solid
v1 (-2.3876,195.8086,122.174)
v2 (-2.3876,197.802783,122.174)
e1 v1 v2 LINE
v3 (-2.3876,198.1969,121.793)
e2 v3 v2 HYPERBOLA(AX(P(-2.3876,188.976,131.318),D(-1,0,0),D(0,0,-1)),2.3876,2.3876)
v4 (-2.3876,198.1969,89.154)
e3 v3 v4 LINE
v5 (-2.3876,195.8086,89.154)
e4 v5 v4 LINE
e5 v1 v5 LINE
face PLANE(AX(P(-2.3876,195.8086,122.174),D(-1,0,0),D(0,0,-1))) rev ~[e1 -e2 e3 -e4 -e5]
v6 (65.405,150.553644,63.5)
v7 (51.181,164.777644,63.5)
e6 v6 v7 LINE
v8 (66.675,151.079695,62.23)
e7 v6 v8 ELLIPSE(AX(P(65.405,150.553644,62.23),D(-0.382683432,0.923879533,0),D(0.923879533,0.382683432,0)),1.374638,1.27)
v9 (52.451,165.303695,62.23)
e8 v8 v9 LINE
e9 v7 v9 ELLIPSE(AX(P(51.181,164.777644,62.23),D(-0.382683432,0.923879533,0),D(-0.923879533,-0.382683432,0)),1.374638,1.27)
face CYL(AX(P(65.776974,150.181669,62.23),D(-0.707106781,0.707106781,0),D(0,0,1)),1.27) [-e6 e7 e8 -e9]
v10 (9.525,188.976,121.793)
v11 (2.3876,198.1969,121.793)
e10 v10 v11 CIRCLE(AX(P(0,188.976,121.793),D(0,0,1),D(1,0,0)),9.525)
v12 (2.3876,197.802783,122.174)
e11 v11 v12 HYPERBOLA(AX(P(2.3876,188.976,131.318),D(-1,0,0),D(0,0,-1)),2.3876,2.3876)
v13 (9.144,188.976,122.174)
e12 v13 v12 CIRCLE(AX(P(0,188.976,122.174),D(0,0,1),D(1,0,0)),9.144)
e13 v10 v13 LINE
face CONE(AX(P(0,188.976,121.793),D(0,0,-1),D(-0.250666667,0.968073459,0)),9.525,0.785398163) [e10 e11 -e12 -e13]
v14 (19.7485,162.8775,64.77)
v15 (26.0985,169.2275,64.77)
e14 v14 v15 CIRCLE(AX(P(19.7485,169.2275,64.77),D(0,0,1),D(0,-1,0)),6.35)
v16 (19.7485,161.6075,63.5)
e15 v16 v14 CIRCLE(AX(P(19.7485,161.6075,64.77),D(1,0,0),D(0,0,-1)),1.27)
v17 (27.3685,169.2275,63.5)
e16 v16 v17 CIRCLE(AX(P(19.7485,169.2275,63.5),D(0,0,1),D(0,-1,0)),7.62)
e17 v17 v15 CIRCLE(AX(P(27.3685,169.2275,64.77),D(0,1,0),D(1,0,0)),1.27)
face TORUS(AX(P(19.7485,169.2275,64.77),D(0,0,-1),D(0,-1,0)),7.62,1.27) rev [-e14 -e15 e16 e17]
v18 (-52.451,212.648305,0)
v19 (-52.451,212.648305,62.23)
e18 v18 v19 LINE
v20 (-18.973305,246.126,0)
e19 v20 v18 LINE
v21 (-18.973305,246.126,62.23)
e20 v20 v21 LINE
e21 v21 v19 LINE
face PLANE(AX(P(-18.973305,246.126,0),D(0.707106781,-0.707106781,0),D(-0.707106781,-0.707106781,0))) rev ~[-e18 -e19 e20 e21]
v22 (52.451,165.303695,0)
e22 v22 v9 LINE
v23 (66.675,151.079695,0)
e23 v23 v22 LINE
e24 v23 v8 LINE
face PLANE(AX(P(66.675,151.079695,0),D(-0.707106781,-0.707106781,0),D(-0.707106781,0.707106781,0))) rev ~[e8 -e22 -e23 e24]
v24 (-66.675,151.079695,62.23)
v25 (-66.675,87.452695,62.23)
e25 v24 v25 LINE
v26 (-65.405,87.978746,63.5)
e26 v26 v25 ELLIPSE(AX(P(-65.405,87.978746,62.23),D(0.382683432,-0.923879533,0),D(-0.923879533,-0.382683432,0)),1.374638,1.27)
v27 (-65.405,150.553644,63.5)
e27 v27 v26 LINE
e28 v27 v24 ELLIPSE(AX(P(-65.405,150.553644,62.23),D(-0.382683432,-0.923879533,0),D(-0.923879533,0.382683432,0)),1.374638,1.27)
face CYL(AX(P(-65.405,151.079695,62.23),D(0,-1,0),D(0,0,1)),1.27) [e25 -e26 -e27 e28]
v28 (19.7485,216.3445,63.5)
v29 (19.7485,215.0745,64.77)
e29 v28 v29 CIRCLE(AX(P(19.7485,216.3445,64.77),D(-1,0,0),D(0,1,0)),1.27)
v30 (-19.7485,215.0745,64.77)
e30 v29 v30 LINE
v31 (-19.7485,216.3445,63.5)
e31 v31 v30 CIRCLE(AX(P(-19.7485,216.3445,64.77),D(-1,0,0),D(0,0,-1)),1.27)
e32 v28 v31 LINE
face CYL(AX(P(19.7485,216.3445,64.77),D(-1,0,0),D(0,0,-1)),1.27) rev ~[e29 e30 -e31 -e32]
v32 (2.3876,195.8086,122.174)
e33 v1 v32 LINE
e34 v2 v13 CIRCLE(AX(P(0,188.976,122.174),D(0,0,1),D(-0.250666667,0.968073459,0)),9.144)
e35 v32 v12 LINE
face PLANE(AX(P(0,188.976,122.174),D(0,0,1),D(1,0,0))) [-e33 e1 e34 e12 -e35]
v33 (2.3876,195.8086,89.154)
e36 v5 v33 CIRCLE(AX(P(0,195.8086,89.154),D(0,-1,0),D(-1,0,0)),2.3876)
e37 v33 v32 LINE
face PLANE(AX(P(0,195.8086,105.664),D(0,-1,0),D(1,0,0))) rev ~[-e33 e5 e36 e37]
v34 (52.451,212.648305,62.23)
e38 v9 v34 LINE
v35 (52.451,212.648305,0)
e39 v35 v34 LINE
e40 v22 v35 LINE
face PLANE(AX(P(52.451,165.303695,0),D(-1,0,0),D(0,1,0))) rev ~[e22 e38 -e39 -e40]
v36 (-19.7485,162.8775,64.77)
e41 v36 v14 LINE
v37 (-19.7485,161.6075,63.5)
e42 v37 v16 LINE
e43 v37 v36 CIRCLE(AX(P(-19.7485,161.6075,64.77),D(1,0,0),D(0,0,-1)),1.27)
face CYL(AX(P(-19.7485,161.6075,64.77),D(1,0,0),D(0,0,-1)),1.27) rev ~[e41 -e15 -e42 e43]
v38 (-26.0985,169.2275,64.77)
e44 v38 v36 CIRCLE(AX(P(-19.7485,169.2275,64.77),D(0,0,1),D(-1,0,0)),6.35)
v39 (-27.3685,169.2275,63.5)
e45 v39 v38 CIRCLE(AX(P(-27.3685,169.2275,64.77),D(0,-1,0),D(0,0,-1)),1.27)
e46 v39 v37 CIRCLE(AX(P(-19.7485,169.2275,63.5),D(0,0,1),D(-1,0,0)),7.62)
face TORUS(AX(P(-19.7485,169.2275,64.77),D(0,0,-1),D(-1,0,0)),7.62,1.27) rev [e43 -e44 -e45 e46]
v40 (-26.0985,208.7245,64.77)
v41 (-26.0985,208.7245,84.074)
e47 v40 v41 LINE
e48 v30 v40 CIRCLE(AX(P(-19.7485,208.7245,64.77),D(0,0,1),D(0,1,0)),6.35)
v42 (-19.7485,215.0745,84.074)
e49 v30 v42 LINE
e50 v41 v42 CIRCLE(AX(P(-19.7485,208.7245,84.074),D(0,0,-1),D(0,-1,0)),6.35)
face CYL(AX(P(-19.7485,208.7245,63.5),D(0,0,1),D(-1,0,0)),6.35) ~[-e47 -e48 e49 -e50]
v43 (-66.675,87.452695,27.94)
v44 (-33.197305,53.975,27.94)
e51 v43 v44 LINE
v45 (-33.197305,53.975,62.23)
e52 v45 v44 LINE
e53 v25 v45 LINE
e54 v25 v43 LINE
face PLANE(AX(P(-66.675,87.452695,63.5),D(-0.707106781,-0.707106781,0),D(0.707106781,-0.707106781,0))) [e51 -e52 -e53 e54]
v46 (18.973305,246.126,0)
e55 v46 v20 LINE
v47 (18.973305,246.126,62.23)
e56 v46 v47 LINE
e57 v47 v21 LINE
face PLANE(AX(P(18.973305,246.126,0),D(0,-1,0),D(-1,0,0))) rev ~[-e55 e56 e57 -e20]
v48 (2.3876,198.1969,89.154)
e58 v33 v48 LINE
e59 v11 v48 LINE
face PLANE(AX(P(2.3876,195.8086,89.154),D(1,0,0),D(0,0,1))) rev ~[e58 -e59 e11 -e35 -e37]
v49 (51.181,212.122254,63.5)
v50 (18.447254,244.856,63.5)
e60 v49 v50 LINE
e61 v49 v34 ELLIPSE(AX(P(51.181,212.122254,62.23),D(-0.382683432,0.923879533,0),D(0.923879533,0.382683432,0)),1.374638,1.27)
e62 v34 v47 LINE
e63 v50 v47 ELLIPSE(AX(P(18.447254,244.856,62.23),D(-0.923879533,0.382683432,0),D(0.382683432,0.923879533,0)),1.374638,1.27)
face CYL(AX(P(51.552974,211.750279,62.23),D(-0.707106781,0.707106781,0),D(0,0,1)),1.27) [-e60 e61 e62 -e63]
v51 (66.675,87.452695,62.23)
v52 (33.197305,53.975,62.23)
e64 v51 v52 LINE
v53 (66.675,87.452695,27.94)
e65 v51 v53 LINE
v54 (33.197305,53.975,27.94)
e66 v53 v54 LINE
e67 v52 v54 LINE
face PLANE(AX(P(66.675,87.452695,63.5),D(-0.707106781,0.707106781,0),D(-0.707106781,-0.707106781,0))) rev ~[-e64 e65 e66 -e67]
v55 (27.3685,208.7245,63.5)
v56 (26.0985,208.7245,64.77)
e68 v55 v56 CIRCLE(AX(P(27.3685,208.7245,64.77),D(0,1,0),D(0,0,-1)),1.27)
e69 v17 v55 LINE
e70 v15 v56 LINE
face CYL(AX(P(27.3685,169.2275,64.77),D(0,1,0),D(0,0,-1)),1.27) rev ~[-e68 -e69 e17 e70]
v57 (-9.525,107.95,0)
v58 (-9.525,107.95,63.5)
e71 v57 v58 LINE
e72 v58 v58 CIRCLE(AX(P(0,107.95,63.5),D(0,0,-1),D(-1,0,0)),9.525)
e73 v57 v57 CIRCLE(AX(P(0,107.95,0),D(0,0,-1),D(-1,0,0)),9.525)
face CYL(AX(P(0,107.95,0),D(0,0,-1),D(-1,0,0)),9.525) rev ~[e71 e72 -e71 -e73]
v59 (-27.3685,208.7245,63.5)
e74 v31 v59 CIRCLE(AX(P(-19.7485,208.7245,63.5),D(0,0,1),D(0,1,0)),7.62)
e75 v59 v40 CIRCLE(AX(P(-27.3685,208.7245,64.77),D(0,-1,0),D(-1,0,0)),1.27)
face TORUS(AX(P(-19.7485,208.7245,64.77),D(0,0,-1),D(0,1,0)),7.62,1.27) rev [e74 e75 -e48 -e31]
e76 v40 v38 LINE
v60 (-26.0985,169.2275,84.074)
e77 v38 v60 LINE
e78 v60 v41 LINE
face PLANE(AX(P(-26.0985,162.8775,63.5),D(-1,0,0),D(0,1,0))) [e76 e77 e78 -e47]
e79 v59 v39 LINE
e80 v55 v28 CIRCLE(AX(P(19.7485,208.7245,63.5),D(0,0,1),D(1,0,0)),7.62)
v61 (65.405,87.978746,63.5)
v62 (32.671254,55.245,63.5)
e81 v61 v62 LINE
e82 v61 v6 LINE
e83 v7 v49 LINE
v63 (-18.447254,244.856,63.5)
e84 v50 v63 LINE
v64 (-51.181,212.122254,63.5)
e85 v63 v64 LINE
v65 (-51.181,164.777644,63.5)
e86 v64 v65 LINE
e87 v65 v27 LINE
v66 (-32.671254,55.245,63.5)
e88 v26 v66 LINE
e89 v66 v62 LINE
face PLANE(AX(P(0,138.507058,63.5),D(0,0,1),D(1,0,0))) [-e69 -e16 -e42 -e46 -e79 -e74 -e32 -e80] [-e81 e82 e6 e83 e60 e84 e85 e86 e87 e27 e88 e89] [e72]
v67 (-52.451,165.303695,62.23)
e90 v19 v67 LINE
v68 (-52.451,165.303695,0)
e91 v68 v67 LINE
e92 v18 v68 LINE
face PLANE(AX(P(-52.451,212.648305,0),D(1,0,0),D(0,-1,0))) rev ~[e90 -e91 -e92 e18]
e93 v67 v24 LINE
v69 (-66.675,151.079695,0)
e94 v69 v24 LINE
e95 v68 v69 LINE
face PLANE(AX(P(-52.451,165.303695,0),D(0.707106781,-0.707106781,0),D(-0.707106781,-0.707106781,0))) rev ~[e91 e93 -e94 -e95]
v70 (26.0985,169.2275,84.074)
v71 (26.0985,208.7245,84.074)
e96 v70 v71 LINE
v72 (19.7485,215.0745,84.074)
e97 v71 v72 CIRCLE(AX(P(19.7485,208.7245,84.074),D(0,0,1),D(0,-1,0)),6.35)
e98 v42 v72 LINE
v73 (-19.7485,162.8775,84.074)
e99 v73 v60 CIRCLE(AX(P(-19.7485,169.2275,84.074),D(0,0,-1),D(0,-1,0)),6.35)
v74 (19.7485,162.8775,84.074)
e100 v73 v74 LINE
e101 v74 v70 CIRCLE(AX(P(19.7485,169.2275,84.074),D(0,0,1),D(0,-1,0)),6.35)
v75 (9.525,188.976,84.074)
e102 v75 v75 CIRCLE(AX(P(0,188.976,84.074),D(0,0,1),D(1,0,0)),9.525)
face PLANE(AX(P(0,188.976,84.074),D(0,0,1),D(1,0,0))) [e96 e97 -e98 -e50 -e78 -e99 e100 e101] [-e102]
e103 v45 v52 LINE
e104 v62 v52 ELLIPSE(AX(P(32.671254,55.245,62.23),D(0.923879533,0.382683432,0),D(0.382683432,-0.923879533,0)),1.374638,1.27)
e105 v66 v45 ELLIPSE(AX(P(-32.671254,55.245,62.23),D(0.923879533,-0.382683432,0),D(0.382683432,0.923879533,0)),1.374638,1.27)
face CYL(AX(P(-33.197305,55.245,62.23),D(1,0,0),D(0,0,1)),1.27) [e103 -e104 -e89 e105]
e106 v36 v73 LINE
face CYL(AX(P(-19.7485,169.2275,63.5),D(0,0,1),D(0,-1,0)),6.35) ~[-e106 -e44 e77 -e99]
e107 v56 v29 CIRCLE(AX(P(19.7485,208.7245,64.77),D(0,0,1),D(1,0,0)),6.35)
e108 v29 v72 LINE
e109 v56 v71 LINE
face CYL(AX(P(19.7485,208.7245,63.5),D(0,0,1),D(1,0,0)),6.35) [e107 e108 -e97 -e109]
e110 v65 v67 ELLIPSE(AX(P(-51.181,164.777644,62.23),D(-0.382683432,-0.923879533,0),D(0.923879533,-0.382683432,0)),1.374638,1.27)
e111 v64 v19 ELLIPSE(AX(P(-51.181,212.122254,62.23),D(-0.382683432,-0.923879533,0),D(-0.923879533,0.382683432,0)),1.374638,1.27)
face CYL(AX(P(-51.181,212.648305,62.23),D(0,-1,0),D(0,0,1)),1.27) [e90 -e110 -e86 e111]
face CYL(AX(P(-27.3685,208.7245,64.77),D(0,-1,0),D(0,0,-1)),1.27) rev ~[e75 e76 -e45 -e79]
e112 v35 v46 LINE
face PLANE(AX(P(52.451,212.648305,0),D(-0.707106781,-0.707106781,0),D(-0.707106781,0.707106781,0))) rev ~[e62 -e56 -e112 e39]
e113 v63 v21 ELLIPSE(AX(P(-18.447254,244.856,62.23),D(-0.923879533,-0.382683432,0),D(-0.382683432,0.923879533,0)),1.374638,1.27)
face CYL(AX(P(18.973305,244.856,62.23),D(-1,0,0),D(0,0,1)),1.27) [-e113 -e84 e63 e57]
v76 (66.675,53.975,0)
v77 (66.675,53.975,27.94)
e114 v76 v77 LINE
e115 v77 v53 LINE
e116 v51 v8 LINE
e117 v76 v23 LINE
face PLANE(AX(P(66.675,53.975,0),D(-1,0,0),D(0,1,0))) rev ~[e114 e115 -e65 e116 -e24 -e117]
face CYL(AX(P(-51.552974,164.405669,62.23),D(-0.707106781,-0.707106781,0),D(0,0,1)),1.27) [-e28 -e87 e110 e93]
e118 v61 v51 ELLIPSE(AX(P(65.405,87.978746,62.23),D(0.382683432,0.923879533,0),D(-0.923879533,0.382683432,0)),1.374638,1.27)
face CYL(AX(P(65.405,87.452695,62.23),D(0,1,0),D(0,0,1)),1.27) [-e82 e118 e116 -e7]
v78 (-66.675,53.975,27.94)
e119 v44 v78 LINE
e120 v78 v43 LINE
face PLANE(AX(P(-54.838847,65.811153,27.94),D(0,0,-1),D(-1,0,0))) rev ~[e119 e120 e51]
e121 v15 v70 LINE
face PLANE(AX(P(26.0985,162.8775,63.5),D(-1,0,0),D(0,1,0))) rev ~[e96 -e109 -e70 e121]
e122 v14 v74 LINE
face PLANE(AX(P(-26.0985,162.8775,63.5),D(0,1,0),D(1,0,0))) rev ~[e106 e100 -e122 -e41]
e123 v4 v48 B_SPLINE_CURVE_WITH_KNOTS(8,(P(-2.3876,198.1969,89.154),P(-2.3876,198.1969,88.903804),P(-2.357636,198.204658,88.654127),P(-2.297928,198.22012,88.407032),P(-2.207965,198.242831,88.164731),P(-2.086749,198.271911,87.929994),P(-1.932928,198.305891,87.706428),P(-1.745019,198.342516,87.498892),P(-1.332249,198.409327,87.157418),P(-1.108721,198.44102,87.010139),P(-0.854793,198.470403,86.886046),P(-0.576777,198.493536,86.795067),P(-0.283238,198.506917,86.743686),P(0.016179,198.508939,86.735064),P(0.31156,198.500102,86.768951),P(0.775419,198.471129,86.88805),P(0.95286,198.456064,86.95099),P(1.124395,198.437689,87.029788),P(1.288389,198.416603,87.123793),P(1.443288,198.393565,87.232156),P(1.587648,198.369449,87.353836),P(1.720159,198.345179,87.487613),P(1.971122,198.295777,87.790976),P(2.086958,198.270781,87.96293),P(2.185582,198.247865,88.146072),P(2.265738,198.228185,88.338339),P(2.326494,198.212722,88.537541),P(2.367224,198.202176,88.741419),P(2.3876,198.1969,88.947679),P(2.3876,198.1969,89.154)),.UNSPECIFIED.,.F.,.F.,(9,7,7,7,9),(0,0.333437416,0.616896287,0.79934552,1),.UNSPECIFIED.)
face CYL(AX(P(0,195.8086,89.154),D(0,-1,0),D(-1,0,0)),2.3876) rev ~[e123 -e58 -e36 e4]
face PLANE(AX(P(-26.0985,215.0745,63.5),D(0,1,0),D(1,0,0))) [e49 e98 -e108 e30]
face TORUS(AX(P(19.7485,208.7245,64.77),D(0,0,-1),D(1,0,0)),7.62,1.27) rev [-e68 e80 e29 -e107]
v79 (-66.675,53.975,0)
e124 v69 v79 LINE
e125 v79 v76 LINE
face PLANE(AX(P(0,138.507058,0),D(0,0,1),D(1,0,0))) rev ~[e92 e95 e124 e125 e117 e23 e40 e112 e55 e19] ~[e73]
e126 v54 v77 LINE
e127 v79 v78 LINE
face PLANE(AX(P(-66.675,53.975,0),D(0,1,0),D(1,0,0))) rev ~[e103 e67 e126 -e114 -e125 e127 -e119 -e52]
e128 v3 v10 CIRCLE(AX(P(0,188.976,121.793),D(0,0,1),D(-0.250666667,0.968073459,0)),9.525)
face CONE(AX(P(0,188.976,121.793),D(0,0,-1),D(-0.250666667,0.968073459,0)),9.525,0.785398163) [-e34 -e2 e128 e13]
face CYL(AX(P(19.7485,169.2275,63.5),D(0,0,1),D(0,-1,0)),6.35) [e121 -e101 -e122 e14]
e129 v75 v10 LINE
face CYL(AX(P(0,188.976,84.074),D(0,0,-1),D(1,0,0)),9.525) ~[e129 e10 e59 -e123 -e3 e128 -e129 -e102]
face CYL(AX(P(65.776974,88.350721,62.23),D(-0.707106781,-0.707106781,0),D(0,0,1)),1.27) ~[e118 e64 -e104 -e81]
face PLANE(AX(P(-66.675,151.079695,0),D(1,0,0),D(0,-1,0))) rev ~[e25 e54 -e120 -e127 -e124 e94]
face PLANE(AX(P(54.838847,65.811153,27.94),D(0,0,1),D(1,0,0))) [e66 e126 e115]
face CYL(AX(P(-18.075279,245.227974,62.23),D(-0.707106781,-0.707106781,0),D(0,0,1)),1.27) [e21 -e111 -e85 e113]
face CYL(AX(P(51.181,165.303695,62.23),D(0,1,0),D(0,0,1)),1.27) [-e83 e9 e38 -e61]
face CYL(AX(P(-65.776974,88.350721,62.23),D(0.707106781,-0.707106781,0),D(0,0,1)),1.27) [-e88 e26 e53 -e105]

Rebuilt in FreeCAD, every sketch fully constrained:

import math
import FreeCAD as App
import Part
import Sketcher
from FreeCAD import Vector
Q = App.Units.Quantity


def edges_at(feature, points):
    """Names of the edges that pass closest to the given points."""
    edges = feature.Shape.Edges
    near = lambda p: min(range(len(edges)), key=lambda i: edges[i].distToShape(Part.Vertex(*p))[0])
    return sorted({f"Edge{near(p) + 1}" for p in points})


def add_polygon(sketch, points):
    """Adds a closed chain of lines whose ends are joined by coincident constraints."""
    first, n = sketch.GeometryCount, len(points)
    for a, b in zip(points, points[1:] + points[:1]):
        sketch.addGeometry(Part.LineSegment(App.Vector(*a, 0), App.Vector(*b, 0)), False)
    for i in range(n):
        sketch.addConstraint(Sketcher.Constraint("Coincident", first + i, 2, first + (i + 1) % n, 1))

doc = App.newDocument("Part")
body = doc.addObject("PartDesign::Body", "Body")

# Sketch on XY plane
sketch1 = doc.addObject("Sketcher::SketchObject", "Sketch")
body.addObject(sketch1)
sketch1.AttachmentSupport = (doc.XY_Plane, [""])
sketch1.MapMode = "FlatFace"
add_polygon(sketch1, [(-67, 54), (67, 54), (67, 151), (52, 165), (52, 213), (19, 246), (-19, 246), (-52, 213), (-52, 165), (-67, 151)])  # lines 0-9
sketch1.addConstraint(Sketcher.Constraint("Horizontal", 0))
sketch1.addConstraint(Sketcher.Constraint("Vertical", 1))
sketch1.addConstraint(Sketcher.Constraint("Vertical", 3))
sketch1.addConstraint(Sketcher.Constraint("Horizontal", 5))
sketch1.addConstraint(Sketcher.Constraint("Vertical", 7))
sketch1.addConstraint(Sketcher.Constraint("Vertical", 9))
sketch1.addConstraint(Sketcher.Constraint("Symmetric", 3, 2, 6, 2, -2))
sketch1.addConstraint(Sketcher.Constraint("Symmetric", 1, 2, 8, 2, -2))
sketch1.addConstraint(Sketcher.Constraint("Parallel", 2, 4))
sketch1.addConstraint(Sketcher.Constraint("Perpendicular", 4, 6))
sketch1.addConstraint(Sketcher.Constraint("Parallel", 6, 8))
sketch1.addConstraint(Sketcher.Constraint("Horizontal", 2, 2, 7, 2))
sketch1.addConstraint(Sketcher.Constraint("DistanceX", 0, 1, 0, 2, Q("5.25 in")))
sketch1.addConstraint(Sketcher.Constraint("DistanceY", -1, 1, 4, 2, Q("9.69 in")))
sketch1.addConstraint(Sketcher.Constraint("DistanceX", 2, 2, 1, 2, Q("0.56 in")))
sketch1.addConstraint(Sketcher.Constraint("DistanceY", -1, 1, 0, 2, Q("2.125 in")))
sketch1.addConstraint(Sketcher.Constraint("DistanceX", 5, 2, 5, 1, Q("37.94661 mm")))
sketch1.addConstraint(Sketcher.Constraint("DistanceY", 3, 1, 3, 2, Q("47.34461 mm")))
pad1 = doc.addObject("PartDesign::Pad", "Pad")
body.addObject(pad1)
pad1.Profile = sketch1
pad1.Length = Q("2.5 in")

# Sketch on XY plane
sketch2 = doc.addObject("Sketcher::SketchObject", "Sketch001")
body.addObject(sketch2)
sketch2.AttachmentSupport = (doc.XY_Plane, [""])
sketch2.MapMode = "FlatFace"
sketch2.AttachmentOffset = App.Placement(Vector(0, 0, 2.5 * 25.4), App.Rotation())
add_polygon(sketch2, [(-26, 215), (-26, 163), (26, 163), (26, 215)])  # lines 0-3
sketch2.addConstraint(Sketcher.Constraint("Vertical", 0))
sketch2.addConstraint(Sketcher.Constraint("Horizontal", 1))
sketch2.addConstraint(Sketcher.Constraint("Vertical", 2))
sketch2.addConstraint(Sketcher.Constraint("Horizontal", 3))
sketch2.addConstraint(Sketcher.Constraint("Equal", 3, 0))
sketch2.addConstraint(Sketcher.Constraint("DistanceX", 1, 1, 1, 2, Q("2.055 in")))
sketch2.addConstraint(Sketcher.Constraint("DistanceX", 0, 2, -1, 1, Q("1.0275 in")))
sketch2.addConstraint(Sketcher.Constraint("DistanceY", -1, 1, 0, 2, Q("6.4125 in")))
pad2 = doc.addObject("PartDesign::Pad", "Pad001")
body.addObject(pad2)
pad2.Profile = sketch2
pad2.Length = Q("0.81 in")

# Sketch on XY plane
sketch3 = doc.addObject("Sketcher::SketchObject", "Sketch002")
body.addObject(sketch3)
sketch3.AttachmentSupport = (doc.XY_Plane, [""])
sketch3.MapMode = "FlatFace"
sketch3.AttachmentOffset = App.Placement(Vector(0, 0, 3.31 * 25.4), App.Rotation())
sketch3.addGeometry(Part.Circle(Vector(0, 189, 0), Vector(0, 0, 1), 10), False)
sketch3.addConstraint(Sketcher.Constraint("PointOnObject", 0, 3, -2))
sketch3.addConstraint(Sketcher.Constraint("Diameter", 0, Q("0.75 in")))
sketch3.addConstraint(Sketcher.Constraint("DistanceY", -1, 1, 0, 3, Q("7.44 in")))
pad3 = doc.addObject("PartDesign::Pad", "Pad002")
body.addObject(pad3)
pad3.Profile = sketch3
pad3.Length = Q("1.5 in")

# Sketch on XY plane
sketch4 = doc.addObject("Sketcher::SketchObject", "Sketch003")
body.addObject(sketch4)
sketch4.AttachmentSupport = (doc.XY_Plane, [""])
sketch4.MapMode = "FlatFace"
sketch4.AttachmentOffset = App.Placement(Vector(0, 0, 2.5 * 25.4), App.Rotation())
add_polygon(sketch4, [(67, 87), (33, 54), (67, 54)])  # lines 0-2
add_polygon(sketch4, [(-67, 87), (-67, 54), (-33, 54)])  # lines 3-5
sketch4.addConstraint(Sketcher.Constraint("Horizontal", 1))
sketch4.addConstraint(Sketcher.Constraint("Vertical", 2))
sketch4.addConstraint(Sketcher.Constraint("Vertical", 3))
sketch4.addConstraint(Sketcher.Constraint("Horizontal", 4))
sketch4.addConstraint(Sketcher.Constraint("Symmetric", 1, 2, 3, 2, -2))
sketch4.addConstraint(Sketcher.Constraint("Perpendicular", 0, 5))
sketch4.addConstraint(Sketcher.Constraint("Horizontal", 2, 2, 5, 2))
sketch4.addConstraint(Sketcher.Constraint("Equal", 1, 4))
sketch4.addConstraint(Sketcher.Constraint("DistanceX", 3, 2, 1, 2, Q("5.25 in")))
sketch4.addConstraint(Sketcher.Constraint("DistanceY", -1, 1, 0, 2, Q("2.125 in")))
sketch4.addConstraint(Sketcher.Constraint("Distance", 0, Q("47.34461 mm")))
pocket1 = doc.addObject("PartDesign::Pocket", "Pocket")
body.addObject(pocket1)
pocket1.Profile = sketch4
pocket1.Length = Q("1.4 in")
doc.recompute()

fillet = doc.addObject("PartDesign::Fillet", "Fillet")
body.addObject(fillet)
fillet.Base = (pocket1, edges_at(pocket1, [
    (-26.099, 215.075, 73.787),
    (-26.099, 162.877, 73.787),
    (26.099, 162.877, 73.787),
    (26.099, 215.075, 73.787),
]))
fillet.Radius = Q("0.25 in")
doc.recompute()

fillet2 = doc.addObject("PartDesign::Fillet", "Fillet001")
body.addObject(fillet2)
fillet2.Base = (fillet, edges_at(fillet, [
    (66.675, 119.266, 63.5),
    (49.936, 70.714, 63.5),
    (59.563, 158.192, 63.5),
    (52.451, 188.976, 63.5),
    (35.712, 229.387, 63.5),
    (0, 53.975, 63.5),
    (0, 246.126, 63.5),
    (-35.712, 229.387, 63.5),
    (-52.451, 188.976, 63.5),
    (-59.563, 158.192, 63.5),
    (-66.675, 119.266, 63.5),
    (-49.936, 70.714, 63.5),
    (0, 162.877, 63.5),
    (-26.099, 188.976, 63.5),
    (26.099, 188.976, 63.5),
    (0, 215.075, 63.5),
    (-24.239, 164.737, 63.5),
    (24.239, 164.737, 63.5),
    (-24.239, 213.215, 63.5),
    (24.239, 213.215, 63.5),
]))
fillet2.Radius = Q("0.05 in")

# Sketch on XZ plane
sketch5 = doc.addObject("Sketcher::SketchObject", "Sketch004")
body.addObject(sketch5)
sketch5.AttachmentSupport = (doc.XZ_Plane, [""])
sketch5.MapMode = "FlatFace"
sketch5.AttachmentOffset = App.Placement(Vector(0, 0, -7.709 * 25.4), App.Rotation())
sketch5.addGeometry(Part.LineSegment(Vector(-2.4, 89.2, 0), Vector(-2.4, 122.2, 0)), False)
sketch5.addGeometry(Part.ArcOfCircle(Part.Circle(Vector(0, 122.2, 0), Vector(0, 0, 1), 2.4), math.radians(0), math.radians(180)), False)
sketch5.addGeometry(Part.LineSegment(Vector(2.4, 122.2, 0), Vector(2.4, 89.2, 0)), False)
sketch5.addGeometry(Part.ArcOfCircle(Part.Circle(Vector(0, 89.2, 0), Vector(0, 0, 1), 2.4), math.radians(180), math.radians(360)), False)
sketch5.addConstraint(Sketcher.Constraint("Tangent", 0, 2, 1, 2))
sketch5.addConstraint(Sketcher.Constraint("Tangent", 1, 1, 2, 1))
sketch5.addConstraint(Sketcher.Constraint("Tangent", 2, 2, 3, 2))
sketch5.addConstraint(Sketcher.Constraint("Tangent", 3, 1, 0, 1))
sketch5.addConstraint(Sketcher.Constraint("Vertical", 0))
sketch5.addConstraint(Sketcher.Constraint("Vertical", 2))
sketch5.addConstraint(Sketcher.Constraint("PointOnObject", 1, 3, -2))
sketch5.addConstraint(Sketcher.Constraint("DistanceY", 0, 1, 0, 2, Q("1.3 in")))
sketch5.addConstraint(Sketcher.Constraint("Radius", 1, Q("0.094 in")))
sketch5.addConstraint(Sketcher.Constraint("DistanceY", -1, 1, 1, 3, Q("4.81 in")))
pocket2 = doc.addObject("PartDesign::Pocket", "Pocket001")
body.addObject(pocket2)
pocket2.Profile = sketch5
pocket2.Type = "ThroughAll"
doc.recompute()

chamfer = doc.addObject("PartDesign::Chamfer", "Chamfer")
body.addObject(chamfer)
chamfer.Base = (pocket2, edges_at(pocket2, [(-5.83, 181.444, 122.174)]))
chamfer.Size = Q("0.015 in")

# Sketch on XY plane
sketch6 = doc.addObject("Sketcher::SketchObject", "Sketch005")
body.addObject(sketch6)
sketch6.AttachmentSupport = (doc.XY_Plane, [""])
sketch6.MapMode = "FlatFace"
sketch6.addGeometry(Part.Circle(Vector(0, 108, 0), Vector(0, 0, 1), 10), False)
sketch6.addConstraint(Sketcher.Constraint("PointOnObject", 0, 3, -2))
sketch6.addConstraint(Sketcher.Constraint("Diameter", 0, Q("0.75 in")))
sketch6.addConstraint(Sketcher.Constraint("DistanceY", -1, 1, 0, 3, Q("4.25 in")))
pocket3 = doc.addObject("PartDesign::Pocket", "Pocket002")
body.addObject(pocket3)
pocket3.Profile = sketch6
pocket3.Type = "ThroughAll"
pocket3.Reversed = True

doc.recompute()
